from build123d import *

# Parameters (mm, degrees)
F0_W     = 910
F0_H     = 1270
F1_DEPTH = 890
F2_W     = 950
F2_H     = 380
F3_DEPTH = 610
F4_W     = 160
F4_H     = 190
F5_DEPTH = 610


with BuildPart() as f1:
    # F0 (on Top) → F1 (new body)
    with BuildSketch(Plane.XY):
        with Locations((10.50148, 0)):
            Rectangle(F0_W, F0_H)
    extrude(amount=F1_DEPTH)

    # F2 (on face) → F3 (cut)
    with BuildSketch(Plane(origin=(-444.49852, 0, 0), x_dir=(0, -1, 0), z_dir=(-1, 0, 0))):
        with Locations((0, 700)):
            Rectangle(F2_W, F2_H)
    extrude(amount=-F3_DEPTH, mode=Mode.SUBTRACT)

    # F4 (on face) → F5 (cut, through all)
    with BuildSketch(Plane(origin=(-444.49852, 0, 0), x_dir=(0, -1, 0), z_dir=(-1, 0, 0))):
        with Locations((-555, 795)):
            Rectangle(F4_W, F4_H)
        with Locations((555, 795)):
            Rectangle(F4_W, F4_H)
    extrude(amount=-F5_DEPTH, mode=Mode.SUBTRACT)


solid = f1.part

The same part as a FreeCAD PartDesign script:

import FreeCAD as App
import Part
import Sketcher
from FreeCAD import Vector
Q = App.Units.Quantity

doc = App.newDocument("Part")
body = doc.addObject("PartDesign::Body", "Body")

# Sketch on XY plane
sketch1 = body.newObject("Sketcher::SketchObject", "Sketch")
sketch1.AttachmentSupport = (doc.getObject("XY_Plane"), [""])
sketch1.MapMode = "FlatFace"
sketch1.addGeometry(Part.LineSegment(Vector(-444, 635, 0), Vector(-444, -635, 0)), False)
sketch1.addGeometry(Part.LineSegment(Vector(-444, -635, 0), Vector(466, -635, 0)), False)
sketch1.addGeometry(Part.LineSegment(Vector(466, -635, 0), Vector(466, 635, 0)), False)
sketch1.addGeometry(Part.LineSegment(Vector(466, 635, 0), Vector(-444, 635, 0)), False)
sketch1.addConstraint(Sketcher.Constraint("Coincident", 0, 2, 1, 1))
sketch1.addConstraint(Sketcher.Constraint("Coincident", 1, 2, 2, 1))
sketch1.addConstraint(Sketcher.Constraint("Coincident", 2, 2, 3, 1))
sketch1.addConstraint(Sketcher.Constraint("Coincident", 3, 2, 0, 1))
sketch1.addConstraint(Sketcher.Constraint("Vertical", 0))
sketch1.addConstraint(Sketcher.Constraint("Horizontal", 1))
sketch1.addConstraint(Sketcher.Constraint("Vertical", 2))
sketch1.addConstraint(Sketcher.Constraint("Horizontal", 3))
sketch1.addConstraint(Sketcher.Constraint("DistanceX", 1, 1, 1, 2, Q("910 mm")))
sketch1.addConstraint(Sketcher.Constraint("DistanceY", 0, 2, 0, 1, Q("1270 mm")))
sketch1.addConstraint(Sketcher.Constraint("DistanceY", 0, 2, -1, 1, Q("635 mm")))
sketch1.addConstraint(Sketcher.Constraint("DistanceX", 0, 2, -1, 1, Q("444.49852 mm")))
pad1 = body.newObject("PartDesign::Pad", "Pad")
pad1.Profile = sketch1
pad1.Length = 890

# Sketch on YZ plane
sketch2 = body.newObject("Sketcher::SketchObject", "Sketch001")
sketch2.AttachmentSupport = (doc.getObject("YZ_Plane"), [""])
sketch2.MapMode = "FlatFace"
sketch2.AttachmentOffset = App.Placement(Vector(0, 0, -444.49852), App.Rotation())
sketch2.addGeometry(Part.LineSegment(Vector(475, 890, 0), Vector(475, 510, 0)), False)
sketch2.addGeometry(Part.LineSegment(Vector(475, 510, 0), Vector(-475, 510, 0)), False)
sketch2.addGeometry(Part.LineSegment(Vector(-475, 510, 0), Vector(-475, 890, 0)), False)
sketch2.addGeometry(Part.LineSegment(Vector(-475, 890, 0), Vector(475, 890, 0)), False)
sketch2.addConstraint(Sketcher.Constraint("Coincident", 0, 2, 1, 1))
sketch2.addConstraint(Sketcher.Constraint("Coincident", 1, 2, 2, 1))
sketch2.addConstraint(Sketcher.Constraint("Coincident", 2, 2, 3, 1))
sketch2.addConstraint(Sketcher.Constraint("Coincident", 3, 2, 0, 1))
sketch2.addConstraint(Sketcher.Constraint("Vertical", 0))
sketch2.addConstraint(Sketcher.Constraint("Horizontal", 1))
sketch2.addConstraint(Sketcher.Constraint("Vertical", 2))
sketch2.addConstraint(Sketcher.Constraint("Horizontal", 3))
sketch2.addConstraint(Sketcher.Constraint("DistanceX", 1, 2, 1, 1, Q("950 mm")))
sketch2.addConstraint(Sketcher.Constraint("DistanceY", 0, 2, 0, 1, Q("380 mm")))
sketch2.addConstraint(Sketcher.Constraint("DistanceX", -1, 1, 0, 2, Q("475 mm")))
sketch2.addConstraint(Sketcher.Constraint("DistanceY", -1, 1, 0, 2, Q("510 mm")))
pocket1 = body.newObject("PartDesign::Pocket", "Pocket")
pocket1.Profile = sketch2
pocket1.Length = 610
pocket1.Reversed = True

# Sketch on YZ plane
sketch3 = body.newObject("Sketcher::SketchObject", "Sketch002")
sketch3.AttachmentSupport = (doc.getObject("YZ_Plane"), [""])
sketch3.MapMode = "FlatFace"
sketch3.AttachmentOffset = App.Placement(Vector(0, 0, -444.49852), App.Rotation())
sketch3.addGeometry(Part.LineSegment(Vector(635, 890, 0), Vector(635, 700, 0)), False)
sketch3.addGeometry(Part.LineSegment(Vector(635, 700, 0), Vector(475, 700, 0)), False)
sketch3.addGeometry(Part.LineSegment(Vector(475, 700, 0), Vector(475, 890, 0)), False)
sketch3.addGeometry(Part.LineSegment(Vector(475, 890, 0), Vector(635, 890, 0)), False)
sketch3.addGeometry(Part.LineSegment(Vector(-475, 890, 0), Vector(-475, 700, 0)), False)
sketch3.addGeometry(Part.LineSegment(Vector(-475, 700, 0), Vector(-635, 700, 0)), False)
sketch3.addGeometry(Part.LineSegment(Vector(-635, 700, 0), Vector(-635, 890, 0)), False)
sketch3.addGeometry(Part.LineSegment(Vector(-635, 890, 0), Vector(-475, 890, 0)), False)
sketch3.addConstraint(Sketcher.Constraint("Coincident", 0, 2, 1, 1))
sketch3.addConstraint(Sketcher.Constraint("Coincident", 1, 2, 2, 1))
sketch3.addConstraint(Sketcher.Constraint("Coincident", 2, 2, 3, 1))
sketch3.addConstraint(Sketcher.Constraint("Coincident", 3, 2, 0, 1))
sketch3.addConstraint(Sketcher.Constraint("Coincident", 4, 2, 5, 1))
sketch3.addConstraint(Sketcher.Constraint("Coincident", 5, 2, 6, 1))
sketch3.addConstraint(Sketcher.Constraint("Coincident", 6, 2, 7, 1))
sketch3.addConstraint(Sketcher.Constraint("Coincident", 7, 2, 4, 1))
sketch3.addConstraint(Sketcher.Constraint("Vertical", 0))
sketch3.addConstraint(Sketcher.Constraint("Horizontal", 1))
sketch3.addConstraint(Sketcher.Constraint("Vertical", 2))
sketch3.addConstraint(Sketcher.Constraint("Horizontal", 3))
sketch3.addConstraint(Sketcher.Constraint("Vertical", 4))
sketch3.addConstraint(Sketcher.Constraint("Horizontal", 5))
sketch3.addConstraint(Sketcher.Constraint("Vertical", 6))
sketch3.addConstraint(Sketcher.Constraint("Horizontal", 7))
sketch3.addConstraint(Sketcher.Constraint("Symmetric", 1, 2, 4, 2, -2))
sketch3.addConstraint(Sketcher.Constraint("Symmetric", 3, 2, 6, 2, -2))
sketch3.addConstraint(Sketcher.Constraint("DistanceX", 1, 2, 1, 1, Q("160 mm")))
sketch3.addConstraint(Sketcher.Constraint("DistanceY", 0, 2, 0, 1, Q("190 mm")))
sketch3.addConstraint(Sketcher.Constraint("DistanceX", -1, 1, 0, 2, Q("635 mm")))
sketch3.addConstraint(Sketcher.Constraint("DistanceY", -1, 1, 0, 2, Q("700 mm")))
pocket2 = body.newObject("PartDesign::Pocket", "Pocket001")
pocket2.Profile = sketch3
pocket2.Length = 610
pocket2.Reversed = True

doc.recompute()
